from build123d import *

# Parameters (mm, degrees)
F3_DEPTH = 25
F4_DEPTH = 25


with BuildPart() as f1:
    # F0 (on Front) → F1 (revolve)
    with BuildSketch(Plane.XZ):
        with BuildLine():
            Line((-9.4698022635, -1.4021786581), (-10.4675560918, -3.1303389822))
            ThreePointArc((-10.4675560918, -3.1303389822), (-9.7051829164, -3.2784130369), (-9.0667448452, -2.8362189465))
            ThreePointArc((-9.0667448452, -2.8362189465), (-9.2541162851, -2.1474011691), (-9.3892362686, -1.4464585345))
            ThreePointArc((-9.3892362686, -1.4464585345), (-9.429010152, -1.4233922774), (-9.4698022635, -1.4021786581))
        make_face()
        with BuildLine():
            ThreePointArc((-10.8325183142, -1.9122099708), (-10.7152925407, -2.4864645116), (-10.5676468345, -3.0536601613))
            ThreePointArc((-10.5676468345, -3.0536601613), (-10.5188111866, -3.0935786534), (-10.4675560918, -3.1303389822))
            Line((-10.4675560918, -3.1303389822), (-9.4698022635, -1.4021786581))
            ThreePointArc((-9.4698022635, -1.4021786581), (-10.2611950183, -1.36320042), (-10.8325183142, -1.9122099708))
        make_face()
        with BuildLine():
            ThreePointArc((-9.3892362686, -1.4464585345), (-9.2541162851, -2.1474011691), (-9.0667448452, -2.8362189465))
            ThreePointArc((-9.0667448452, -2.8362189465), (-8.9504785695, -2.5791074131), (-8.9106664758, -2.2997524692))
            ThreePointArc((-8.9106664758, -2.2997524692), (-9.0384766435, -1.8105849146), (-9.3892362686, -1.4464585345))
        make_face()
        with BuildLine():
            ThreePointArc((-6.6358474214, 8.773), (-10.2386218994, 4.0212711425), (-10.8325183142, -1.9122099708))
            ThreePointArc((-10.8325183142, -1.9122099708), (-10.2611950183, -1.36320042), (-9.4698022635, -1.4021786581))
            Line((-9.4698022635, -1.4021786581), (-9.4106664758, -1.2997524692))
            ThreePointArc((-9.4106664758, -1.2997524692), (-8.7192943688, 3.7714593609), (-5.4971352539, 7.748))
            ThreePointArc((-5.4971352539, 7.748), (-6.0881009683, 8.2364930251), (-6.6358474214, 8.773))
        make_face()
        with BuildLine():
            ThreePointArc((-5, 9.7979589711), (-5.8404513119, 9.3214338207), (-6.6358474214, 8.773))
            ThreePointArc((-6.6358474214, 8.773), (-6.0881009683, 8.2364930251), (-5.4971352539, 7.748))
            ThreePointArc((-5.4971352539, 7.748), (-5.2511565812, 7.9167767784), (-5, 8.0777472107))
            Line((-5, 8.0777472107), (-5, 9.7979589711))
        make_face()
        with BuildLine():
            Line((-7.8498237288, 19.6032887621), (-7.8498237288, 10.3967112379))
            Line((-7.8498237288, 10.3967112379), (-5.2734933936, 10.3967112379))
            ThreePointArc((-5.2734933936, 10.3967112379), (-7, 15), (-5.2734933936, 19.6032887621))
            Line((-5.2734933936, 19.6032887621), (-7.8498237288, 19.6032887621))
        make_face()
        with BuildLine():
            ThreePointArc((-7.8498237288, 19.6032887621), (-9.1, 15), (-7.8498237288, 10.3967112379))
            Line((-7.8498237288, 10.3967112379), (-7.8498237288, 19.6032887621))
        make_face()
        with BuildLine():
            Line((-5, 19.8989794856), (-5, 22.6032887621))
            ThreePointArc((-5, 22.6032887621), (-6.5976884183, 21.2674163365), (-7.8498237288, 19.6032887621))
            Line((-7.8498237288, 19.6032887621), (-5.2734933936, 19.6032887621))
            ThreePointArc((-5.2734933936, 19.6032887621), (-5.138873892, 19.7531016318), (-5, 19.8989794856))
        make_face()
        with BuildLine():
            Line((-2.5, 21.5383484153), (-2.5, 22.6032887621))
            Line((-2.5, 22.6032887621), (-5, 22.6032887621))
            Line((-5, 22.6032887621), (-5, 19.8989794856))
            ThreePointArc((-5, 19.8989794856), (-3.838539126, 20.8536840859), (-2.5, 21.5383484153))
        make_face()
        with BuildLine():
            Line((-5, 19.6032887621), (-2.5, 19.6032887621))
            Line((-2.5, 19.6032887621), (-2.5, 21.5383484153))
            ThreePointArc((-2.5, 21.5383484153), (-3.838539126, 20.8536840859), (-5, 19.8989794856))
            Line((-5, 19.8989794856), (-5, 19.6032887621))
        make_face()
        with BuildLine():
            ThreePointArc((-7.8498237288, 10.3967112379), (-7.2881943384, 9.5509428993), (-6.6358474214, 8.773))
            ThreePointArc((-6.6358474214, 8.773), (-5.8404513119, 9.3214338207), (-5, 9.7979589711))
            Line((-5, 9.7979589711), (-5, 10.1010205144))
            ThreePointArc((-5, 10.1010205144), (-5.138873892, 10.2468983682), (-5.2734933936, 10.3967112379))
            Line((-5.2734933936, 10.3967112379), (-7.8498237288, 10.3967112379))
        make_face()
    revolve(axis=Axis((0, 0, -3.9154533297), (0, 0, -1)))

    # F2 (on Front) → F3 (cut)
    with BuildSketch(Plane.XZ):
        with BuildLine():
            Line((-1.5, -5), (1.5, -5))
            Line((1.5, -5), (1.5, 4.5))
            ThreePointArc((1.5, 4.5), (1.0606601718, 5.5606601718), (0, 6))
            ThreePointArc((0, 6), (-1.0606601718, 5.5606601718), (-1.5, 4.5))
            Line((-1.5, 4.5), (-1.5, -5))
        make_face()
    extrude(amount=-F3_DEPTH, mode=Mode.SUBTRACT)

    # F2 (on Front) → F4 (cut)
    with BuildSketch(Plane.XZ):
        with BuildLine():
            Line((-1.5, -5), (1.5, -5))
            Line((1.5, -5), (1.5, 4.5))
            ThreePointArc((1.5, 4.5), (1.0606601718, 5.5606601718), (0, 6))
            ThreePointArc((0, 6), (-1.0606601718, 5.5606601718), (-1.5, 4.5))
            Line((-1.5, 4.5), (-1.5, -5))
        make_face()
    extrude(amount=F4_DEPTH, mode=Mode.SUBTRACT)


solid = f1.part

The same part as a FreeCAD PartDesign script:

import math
import FreeCAD as App
import Part
import Sketcher

V = App.Vector
Q = App.Units.Quantity

doc = App.newDocument("Part")
body = doc.addObject("PartDesign::Body", "Body")

sketch1 = doc.addObject("Sketcher::SketchObject", "Sketch")
body.addObject(sketch1)
sketch1.AttachmentSupport = (doc.XZ_Plane, [""])
sketch1.MapMode = "FlatFace"
sketch1.addGeometry([
    Part.ArcOfCircle(Part.Circle(V(-9.91, -2.3, 0), V(0, 0, 1), 1), math.radians(-124), math.radians(-32)),
    Part.ArcOfCircle(Part.Circle(V(-9.91, -2.3, 0), V(0, 0, 1), 1), math.radians(-32), math.radians(0)),
    Part.ArcOfCircle(Part.Circle(V(-9.91, -2.3, 0), V(0, 0, 1), 1), math.radians(0), math.radians(59)),
    Part.ArcOfCircle(Part.Circle(V(-9.91, -2.3, 0), V(0, 0, 1), 1), math.radians(58.57), math.radians(63.84)),
    Part.LineSegment(V(-9.47, -1.4, 0), V(-9.41, -1.3, 0)),
    Part.ArcOfCircle(Part.Circle(V(0, 0, 0), V(0, 0, 1), 9.5), math.radians(125), math.radians(188)),
    Part.ArcOfCircle(Part.Circle(V(0, 0, 0), V(0, 0, 1), 9.5), math.radians(121.76), math.radians(125.36)),
    Part.LineSegment(V(-5, 8.08, 0), V(-5, 10.1, 0)),
    Part.ArcOfCircle(Part.Circle(V(0, 15, 0), V(0, 0, 1), 7), math.radians(-138.88), math.radians(-135.58)),
    Part.ArcOfCircle(Part.Circle(V(0, 15, 0), V(0, 0, 1), 7), math.radians(139), math.radians(221)),
    Part.ArcOfCircle(Part.Circle(V(0, 15, 0), V(0, 0, 1), 7), math.radians(135.58), math.radians(138.88)),
    Part.LineSegment(V(-5, 19.9, 0), V(-5, 19.6, 0)),
    Part.LineSegment(V(-5, 19.6, 0), V(-2.5, 19.6, 0)),
    Part.LineSegment(V(-2.5, 19.6, 0), V(-2.5, 22.6, 0)),
    Part.LineSegment(V(-2.5, 22.6, 0), V(-5, 22.6, 0)),
    Part.ArcOfCircle(Part.Circle(V(0, 15, 0), V(0, 0, 1), 9.1), math.radians(123), math.radians(150)),
    Part.ArcOfCircle(Part.Circle(V(0, 15, 0), V(0, 0, 1), 9.1), math.radians(150), math.radians(210)),
    Part.ArcOfCircle(Part.Circle(V(0, 15, 0), V(0, 0, 1), 9.1), math.radians(-149.61), math.radians(-136.82)),
    Part.ArcOfCircle(Part.Circle(V(0, 0, 0), V(0, 0, 1), 11), math.radians(127), math.radians(190)),
    Part.ArcOfCircle(Part.Circle(V(0, 0, 0), V(0, 0, 1), 11), math.radians(-169.99), math.radians(-163.88)),
    Part.ArcOfCircle(Part.Circle(V(-9.91, -2.3, 0), V(0, 0, 1), 1), math.radians(-131.07), math.radians(-123.84)),
], False)
sketch1.addConstraint([
    Sketcher.Constraint("Tangent", 0, 2, 1, 1),
    Sketcher.Constraint("Tangent", 1, 2, 2, 1),
    Sketcher.Constraint("Tangent", 2, 2, 3, 1),
    Sketcher.Constraint("Coincident", 3, 2, 4, 1),
    Sketcher.Constraint("Coincident", 4, 2, 5, 2),
    Sketcher.Constraint("Tangent", 5, 1, 6, 2),
    Sketcher.Constraint("Coincident", 6, 1, 7, 1),
    Sketcher.Constraint("Coincident", 7, 2, 8, 2),
    Sketcher.Constraint("Tangent", 8, 1, 9, 2),
    Sketcher.Constraint("Tangent", 9, 1, 10, 2),
    Sketcher.Constraint("Coincident", 10, 1, 11, 1),
    Sketcher.Constraint("Coincident", 11, 2, 12, 1),
    Sketcher.Constraint("Coincident", 12, 2, 13, 1),
    Sketcher.Constraint("Coincident", 13, 2, 14, 1),
    Sketcher.Constraint("Coincident", 14, 2, 15, 1),
    Sketcher.Constraint("Tangent", 15, 2, 16, 1),
    Sketcher.Constraint("Tangent", 16, 2, 17, 1),
    Sketcher.Constraint("Coincident", 17, 2, 18, 1),
    Sketcher.Constraint("Tangent", 18, 2, 19, 1),
    Sketcher.Constraint("Coincident", 19, 2, 20, 1),
    Sketcher.Constraint("Tangent", 20, 2, 0, 1),
    Sketcher.Constraint("Vertical", 7),
    Sketcher.Constraint("Vertical", 11),
    Sketcher.Constraint("Horizontal", 12),
    Sketcher.Constraint("Vertical", 13),
    Sketcher.Constraint("Horizontal", 14),
    Sketcher.Constraint("Coincident", 5, 3, -1, 1),
    Sketcher.Constraint("Coincident", 18, 3, -1, 1),
    Sketcher.Constraint("Coincident", 2, 3, 0, 3),
    Sketcher.Constraint("Coincident", 10, 3, 8, 3),
    Sketcher.Constraint("Coincident", 15, 3, 8, 3),
    Sketcher.Constraint("Coincident", 17, 3, 8, 3),
    Sketcher.Constraint("Equal", 2, 3),
    Sketcher.Constraint("Equal", 5, 6),
    Sketcher.Constraint("Equal", 18, 19),
    Sketcher.Constraint("Equal", 3, 20),
    Sketcher.Constraint("PointOnObject", 8, 3, -2),
    Sketcher.Constraint("Horizontal", 20, 3, 1, 2),
    Sketcher.Constraint("Horizontal", 9, 1, 11, 2),
    Sketcher.Constraint("Horizontal", 12, 2, 15, 2),
    Sketcher.Constraint("Horizontal", 8, 1, 16, 2),
    Sketcher.Constraint("Vertical", 8, 1, 9, 1),
    Sketcher.Constraint("Vertical", 7, 2, 10, 1),
    Sketcher.Constraint("Vertical", 11, 2, 14, 2),
    Sketcher.Constraint("Radius", 0, Q("1 mm")),
    Sketcher.Constraint("Radius", 8, Q("7 mm")),
    Sketcher.Constraint("Radius", 18, Q("11 mm")),
    Sketcher.Constraint("Radius", 5, Q("9.5 mm")),
    Sketcher.Constraint("Radius", 15, Q("9.1 mm")),
    Sketcher.Constraint("DistanceY", 13, 1, 13, 2, Q("3 mm")),
    Sketcher.Constraint("Angle", 4, Q("60 deg")),
    Sketcher.Constraint("DistanceX", 12, 1, 12, 2, Q("2.5 mm")),
    Sketcher.Constraint("DistanceY", -1, 1, 8, 3, Q("15 mm")),
    Sketcher.Constraint("DistanceX", 6, 1, -1, 1, Q("5 mm")),
    Sketcher.Constraint("DistanceY", 3, 3, 4, 2, Q("1 mm")),
    Sketcher.Constraint("DistanceX", 3, 3, 4, 2, Q("0.5 mm")),
    Sketcher.Constraint("DistanceY", -1, 1, 5, 1, Q("7.748 mm")),
    Sketcher.Constraint("DistanceY", 0, 2, -1, 1, Q("2.836219 mm")),
    Sketcher.Constraint("DistanceY", 2, 2, -1, 1, Q("1.446459 mm")),
    Sketcher.Constraint("DistanceY", 3, 2, -1, 1, Q("1.402179 mm")),
    Sketcher.Constraint("DistanceX", 18, 2, -1, 1, Q("10.832518 mm")),
    Sketcher.Constraint("DistanceY", 20, 2, -1, 1, Q("3.130339 mm")),
])
revolution = doc.addObject("PartDesign::Revolution", "Revolution")
body.addObject(revolution)
revolution.Profile = sketch1
revolution.ReferenceAxis = (sketch1, ["V_Axis"])
revolution.Angle = 360

sketch2 = doc.addObject("Sketcher::SketchObject", "Sketch001")
body.addObject(sketch2)
sketch2.AttachmentSupport = (doc.XZ_Plane, [""])
sketch2.MapMode = "FlatFace"
sketch2.addGeometry([
    Part.LineSegment(V(-1.5, -5, 0), V(1.5, -5, 0)),
    Part.LineSegment(V(1.5, -5, 0), V(1.5, 4.5, 0)),
    Part.ArcOfCircle(Part.Circle(V(0, 4.5, 0), V(0, 0, 1), 1.5), math.radians(0), math.radians(90)),
    Part.ArcOfCircle(Part.Circle(V(0, 4.5, 0), V(0, 0, 1), 1.5), math.radians(90), math.radians(180)),
    Part.LineSegment(V(-1.5, 4.5, 0), V(-1.5, -5, 0)),
], False)
sketch2.addConstraint([
    Sketcher.Constraint("Coincident", 0, 2, 1, 1),
    Sketcher.Constraint("Tangent", 1, 2, 2, 1),
    Sketcher.Constraint("Tangent", 2, 2, 3, 1),
    Sketcher.Constraint("Tangent", 3, 2, 4, 1),
    Sketcher.Constraint("Coincident", 4, 2, 0, 1),
    Sketcher.Constraint("Horizontal", 0),
    Sketcher.Constraint("Vertical", 1),
    Sketcher.Constraint("Vertical", 4),
    Sketcher.Constraint("Equal", 2, 3),
    Sketcher.Constraint("PointOnObject", 2, 3, -2),
    Sketcher.Constraint("PointOnObject", 2, 2, -2),
    Sketcher.Constraint("Radius", 2, Q("1.5 mm")),
    Sketcher.Constraint("DistanceY", 1, 1, 1, 2, Q("9.5 mm")),
    Sketcher.Constraint("DistanceY", 0, 2, -1, 1, Q("5 mm")),
])
pocket1 = doc.addObject("PartDesign::Pocket", "Pocket")
body.addObject(pocket1)
pocket1.Profile = sketch2
pocket1.Length = 25

sketch3 = doc.addObject("Sketcher::SketchObject", "Sketch002")
body.addObject(sketch3)
sketch3.AttachmentSupport = (doc.XZ_Plane, [""])
sketch3.MapMode = "FlatFace"
sketch3.addGeometry([
    Part.LineSegment(V(-1.5, -5, 0), V(1.5, -5, 0)),
    Part.LineSegment(V(1.5, -5, 0), V(1.5, 4.5, 0)),
    Part.ArcOfCircle(Part.Circle(V(0, 4.5, 0), V(0, 0, 1), 1.5), math.radians(0), math.radians(90)),
    Part.ArcOfCircle(Part.Circle(V(0, 4.5, 0), V(0, 0, 1), 1.5), math.radians(90), math.radians(180)),
    Part.LineSegment(V(-1.5, 4.5, 0), V(-1.5, -5, 0)),
], False)
sketch3.addConstraint([
    Sketcher.Constraint("Coincident", 0, 2, 1, 1),
    Sketcher.Constraint("Tangent", 1, 2, 2, 1),
    Sketcher.Constraint("Tangent", 2, 2, 3, 1),
    Sketcher.Constraint("Tangent", 3, 2, 4, 1),
    Sketcher.Constraint("Coincident", 4, 2, 0, 1),
    Sketcher.Constraint("Horizontal", 0),
    Sketcher.Constraint("Vertical", 1),
    Sketcher.Constraint("Vertical", 4),
    Sketcher.Constraint("Equal", 2, 3),
    Sketcher.Constraint("PointOnObject", 2, 3, -2),
    Sketcher.Constraint("PointOnObject", 2, 2, -2),
    Sketcher.Constraint("Radius", 2, Q("1.5 mm")),
    Sketcher.Constraint("DistanceY", 1, 1, 1, 2, Q("9.5 mm")),
    Sketcher.Constraint("DistanceY", 0, 2, -1, 1, Q("5 mm")),
])
pocket2 = doc.addObject("PartDesign::Pocket", "Pocket001")
body.addObject(pocket2)
pocket2.Profile = sketch3
pocket2.Length = 25
pocket2.Reversed = True

doc.recompute()
